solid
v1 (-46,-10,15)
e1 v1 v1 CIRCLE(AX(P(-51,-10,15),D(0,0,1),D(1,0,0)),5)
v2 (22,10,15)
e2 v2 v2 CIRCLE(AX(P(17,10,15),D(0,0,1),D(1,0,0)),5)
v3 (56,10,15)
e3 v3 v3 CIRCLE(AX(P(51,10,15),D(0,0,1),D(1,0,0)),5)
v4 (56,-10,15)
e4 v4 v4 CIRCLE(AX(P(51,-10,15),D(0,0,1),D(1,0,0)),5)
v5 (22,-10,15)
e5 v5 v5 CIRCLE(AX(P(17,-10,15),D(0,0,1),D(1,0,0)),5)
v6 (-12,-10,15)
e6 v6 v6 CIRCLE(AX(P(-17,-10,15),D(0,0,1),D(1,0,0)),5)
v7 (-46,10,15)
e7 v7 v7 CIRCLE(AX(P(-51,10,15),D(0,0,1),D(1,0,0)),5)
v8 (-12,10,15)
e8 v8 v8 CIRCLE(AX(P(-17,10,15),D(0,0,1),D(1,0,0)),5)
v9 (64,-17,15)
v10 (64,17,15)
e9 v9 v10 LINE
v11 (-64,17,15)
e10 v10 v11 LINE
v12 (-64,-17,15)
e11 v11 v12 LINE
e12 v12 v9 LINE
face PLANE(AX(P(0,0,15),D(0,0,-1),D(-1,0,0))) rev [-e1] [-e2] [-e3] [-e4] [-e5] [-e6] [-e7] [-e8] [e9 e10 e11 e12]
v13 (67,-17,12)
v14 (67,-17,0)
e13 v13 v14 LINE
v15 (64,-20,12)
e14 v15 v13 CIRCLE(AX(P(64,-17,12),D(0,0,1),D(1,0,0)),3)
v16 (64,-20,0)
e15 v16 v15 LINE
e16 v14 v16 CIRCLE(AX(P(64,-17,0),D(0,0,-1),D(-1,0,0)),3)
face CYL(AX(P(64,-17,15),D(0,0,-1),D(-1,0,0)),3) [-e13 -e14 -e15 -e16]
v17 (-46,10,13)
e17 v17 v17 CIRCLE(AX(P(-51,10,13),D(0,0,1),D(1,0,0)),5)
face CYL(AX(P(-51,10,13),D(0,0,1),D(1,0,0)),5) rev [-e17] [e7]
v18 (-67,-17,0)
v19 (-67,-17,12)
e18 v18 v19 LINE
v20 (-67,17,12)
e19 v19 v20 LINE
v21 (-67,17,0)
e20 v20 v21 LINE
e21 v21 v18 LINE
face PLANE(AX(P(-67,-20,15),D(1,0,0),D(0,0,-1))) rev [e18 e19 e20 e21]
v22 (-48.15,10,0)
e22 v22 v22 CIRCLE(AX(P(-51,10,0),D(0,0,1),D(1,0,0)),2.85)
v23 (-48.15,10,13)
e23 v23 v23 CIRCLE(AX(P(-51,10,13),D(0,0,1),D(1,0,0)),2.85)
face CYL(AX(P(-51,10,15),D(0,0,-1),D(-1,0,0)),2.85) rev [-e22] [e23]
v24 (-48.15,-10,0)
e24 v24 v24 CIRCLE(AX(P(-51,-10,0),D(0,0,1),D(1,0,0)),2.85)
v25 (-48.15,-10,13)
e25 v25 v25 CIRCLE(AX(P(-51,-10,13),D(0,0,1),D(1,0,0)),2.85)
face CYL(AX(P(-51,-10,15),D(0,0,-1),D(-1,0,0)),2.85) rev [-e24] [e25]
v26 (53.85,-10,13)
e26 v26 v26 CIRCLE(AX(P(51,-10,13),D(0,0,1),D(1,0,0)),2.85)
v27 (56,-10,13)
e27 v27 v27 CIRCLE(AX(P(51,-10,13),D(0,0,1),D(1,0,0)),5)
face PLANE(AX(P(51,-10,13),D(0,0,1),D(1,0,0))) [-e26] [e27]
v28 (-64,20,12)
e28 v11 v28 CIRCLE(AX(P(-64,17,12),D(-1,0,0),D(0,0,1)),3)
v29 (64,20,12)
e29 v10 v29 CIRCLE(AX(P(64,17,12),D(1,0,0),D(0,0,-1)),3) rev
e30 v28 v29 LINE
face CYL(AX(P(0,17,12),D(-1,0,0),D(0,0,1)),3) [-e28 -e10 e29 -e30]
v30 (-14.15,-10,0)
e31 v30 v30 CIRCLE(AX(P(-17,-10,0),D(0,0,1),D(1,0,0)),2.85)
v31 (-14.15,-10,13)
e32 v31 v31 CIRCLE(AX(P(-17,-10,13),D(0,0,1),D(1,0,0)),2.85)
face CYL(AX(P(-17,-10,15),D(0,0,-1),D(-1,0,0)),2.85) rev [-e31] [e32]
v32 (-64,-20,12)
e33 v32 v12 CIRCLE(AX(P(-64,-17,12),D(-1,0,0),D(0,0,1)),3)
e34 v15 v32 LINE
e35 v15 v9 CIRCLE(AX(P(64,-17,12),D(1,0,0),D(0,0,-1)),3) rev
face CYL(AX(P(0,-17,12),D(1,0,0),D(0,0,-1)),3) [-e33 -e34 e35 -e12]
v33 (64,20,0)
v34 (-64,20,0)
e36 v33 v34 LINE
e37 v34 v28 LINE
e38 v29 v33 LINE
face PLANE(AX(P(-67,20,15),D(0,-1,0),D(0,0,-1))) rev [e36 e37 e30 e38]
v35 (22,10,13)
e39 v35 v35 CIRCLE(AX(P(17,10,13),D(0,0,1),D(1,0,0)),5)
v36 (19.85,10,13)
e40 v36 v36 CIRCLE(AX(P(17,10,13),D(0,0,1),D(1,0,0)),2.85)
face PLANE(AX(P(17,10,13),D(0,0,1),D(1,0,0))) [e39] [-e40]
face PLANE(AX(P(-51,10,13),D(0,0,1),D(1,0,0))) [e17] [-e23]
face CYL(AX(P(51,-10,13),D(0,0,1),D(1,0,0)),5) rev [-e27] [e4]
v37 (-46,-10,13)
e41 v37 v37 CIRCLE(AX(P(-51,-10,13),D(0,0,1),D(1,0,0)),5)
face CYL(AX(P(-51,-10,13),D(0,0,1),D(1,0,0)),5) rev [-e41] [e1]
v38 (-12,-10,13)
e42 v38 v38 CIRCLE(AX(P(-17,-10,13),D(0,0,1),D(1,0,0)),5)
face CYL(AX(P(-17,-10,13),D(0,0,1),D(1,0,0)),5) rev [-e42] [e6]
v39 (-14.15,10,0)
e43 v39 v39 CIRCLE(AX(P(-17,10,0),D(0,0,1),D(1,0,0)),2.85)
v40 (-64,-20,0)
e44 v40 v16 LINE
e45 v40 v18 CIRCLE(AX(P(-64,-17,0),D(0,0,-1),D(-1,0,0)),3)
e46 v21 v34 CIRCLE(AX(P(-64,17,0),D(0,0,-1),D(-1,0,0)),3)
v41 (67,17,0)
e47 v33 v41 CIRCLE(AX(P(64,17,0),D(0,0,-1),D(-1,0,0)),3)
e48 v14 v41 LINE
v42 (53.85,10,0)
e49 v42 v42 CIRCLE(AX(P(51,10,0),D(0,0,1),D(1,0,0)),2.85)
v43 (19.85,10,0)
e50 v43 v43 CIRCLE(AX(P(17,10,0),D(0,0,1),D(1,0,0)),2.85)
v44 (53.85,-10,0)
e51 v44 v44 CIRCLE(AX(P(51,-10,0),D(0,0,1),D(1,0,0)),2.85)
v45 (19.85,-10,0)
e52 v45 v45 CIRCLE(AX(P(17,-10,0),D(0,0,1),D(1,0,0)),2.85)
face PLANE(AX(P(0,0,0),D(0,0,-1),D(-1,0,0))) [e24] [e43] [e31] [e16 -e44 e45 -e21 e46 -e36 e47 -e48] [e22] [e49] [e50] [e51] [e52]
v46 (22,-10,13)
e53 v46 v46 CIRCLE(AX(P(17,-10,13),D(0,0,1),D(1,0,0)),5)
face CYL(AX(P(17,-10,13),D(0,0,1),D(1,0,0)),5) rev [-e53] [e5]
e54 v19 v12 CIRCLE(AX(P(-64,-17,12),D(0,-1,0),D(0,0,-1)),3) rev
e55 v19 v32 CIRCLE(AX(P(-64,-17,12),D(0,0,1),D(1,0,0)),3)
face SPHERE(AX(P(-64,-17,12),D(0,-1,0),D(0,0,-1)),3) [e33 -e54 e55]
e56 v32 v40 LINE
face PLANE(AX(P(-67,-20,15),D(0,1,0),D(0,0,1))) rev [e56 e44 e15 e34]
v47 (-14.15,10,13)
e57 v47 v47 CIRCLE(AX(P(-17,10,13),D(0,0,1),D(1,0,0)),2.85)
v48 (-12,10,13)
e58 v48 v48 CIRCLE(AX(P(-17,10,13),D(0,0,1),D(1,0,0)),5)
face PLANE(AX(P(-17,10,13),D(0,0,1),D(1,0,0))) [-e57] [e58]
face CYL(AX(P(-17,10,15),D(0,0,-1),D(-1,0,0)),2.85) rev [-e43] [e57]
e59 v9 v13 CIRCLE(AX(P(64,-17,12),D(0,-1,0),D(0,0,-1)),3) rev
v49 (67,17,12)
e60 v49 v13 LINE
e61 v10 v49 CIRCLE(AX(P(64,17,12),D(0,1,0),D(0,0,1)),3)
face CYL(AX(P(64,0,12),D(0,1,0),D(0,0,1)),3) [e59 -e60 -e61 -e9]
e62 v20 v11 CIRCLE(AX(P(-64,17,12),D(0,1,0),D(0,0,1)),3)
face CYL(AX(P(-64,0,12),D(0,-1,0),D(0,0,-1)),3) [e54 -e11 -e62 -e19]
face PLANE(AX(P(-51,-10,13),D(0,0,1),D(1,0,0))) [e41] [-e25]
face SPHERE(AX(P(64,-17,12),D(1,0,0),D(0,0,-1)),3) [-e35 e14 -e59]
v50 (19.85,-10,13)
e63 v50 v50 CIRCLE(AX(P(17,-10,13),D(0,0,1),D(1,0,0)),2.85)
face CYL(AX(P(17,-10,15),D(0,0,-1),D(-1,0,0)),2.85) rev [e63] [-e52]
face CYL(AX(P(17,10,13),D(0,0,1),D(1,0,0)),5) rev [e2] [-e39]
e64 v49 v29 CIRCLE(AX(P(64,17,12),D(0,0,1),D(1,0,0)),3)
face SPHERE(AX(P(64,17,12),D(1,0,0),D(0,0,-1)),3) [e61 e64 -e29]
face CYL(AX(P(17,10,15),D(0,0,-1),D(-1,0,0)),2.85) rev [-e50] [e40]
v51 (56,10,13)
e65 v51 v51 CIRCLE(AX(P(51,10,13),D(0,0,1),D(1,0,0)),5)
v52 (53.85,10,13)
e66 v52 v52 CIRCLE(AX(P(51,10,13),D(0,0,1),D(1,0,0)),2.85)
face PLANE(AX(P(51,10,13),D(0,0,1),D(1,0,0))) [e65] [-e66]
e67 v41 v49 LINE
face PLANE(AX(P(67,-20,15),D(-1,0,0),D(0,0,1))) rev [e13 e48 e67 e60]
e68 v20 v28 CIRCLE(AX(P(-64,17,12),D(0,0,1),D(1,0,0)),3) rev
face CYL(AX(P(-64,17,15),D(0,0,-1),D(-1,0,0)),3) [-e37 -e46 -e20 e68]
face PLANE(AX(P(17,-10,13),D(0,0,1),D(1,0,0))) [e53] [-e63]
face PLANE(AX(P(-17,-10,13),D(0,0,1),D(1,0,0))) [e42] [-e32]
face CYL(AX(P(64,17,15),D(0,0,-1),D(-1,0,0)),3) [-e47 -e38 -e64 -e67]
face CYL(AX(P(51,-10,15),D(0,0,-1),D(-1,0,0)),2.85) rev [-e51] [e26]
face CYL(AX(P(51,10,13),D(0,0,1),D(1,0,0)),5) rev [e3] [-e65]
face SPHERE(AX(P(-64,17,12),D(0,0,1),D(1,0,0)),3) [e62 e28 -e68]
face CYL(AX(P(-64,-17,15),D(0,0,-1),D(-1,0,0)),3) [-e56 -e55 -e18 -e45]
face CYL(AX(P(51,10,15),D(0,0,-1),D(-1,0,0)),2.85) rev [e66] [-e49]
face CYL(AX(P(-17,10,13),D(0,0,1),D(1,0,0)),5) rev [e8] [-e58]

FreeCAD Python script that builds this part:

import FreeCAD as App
import Part
import Sketcher

V = App.Vector


def edges_at(feature, points):
    """Names of the edges that pass closest to the given points."""
    edges = feature.Shape.Edges
    near = lambda p: min(range(len(edges)), key=lambda i: edges[i].distToShape(Part.Vertex(*p))[0])
    return sorted({f"Edge{near(p) + 1}" for p in points})


def add_polygon(sketch, points):
    """Adds a closed chain of lines whose ends are joined by coincident constraints."""
    first, n = sketch.GeometryCount, len(points)
    for a, b in zip(points, points[1:] + points[:1]):
        sketch.addGeometry(Part.LineSegment(App.Vector(*a, 0), App.Vector(*b, 0)), False)
    for i in range(n):
        sketch.addConstraint(Sketcher.Constraint("Coincident", first + i, 2, first + (i + 1) % n, 1))

doc = App.newDocument("Part")
body = doc.addObject("PartDesign::Body", "Body")

# Sketch on XY plane
sketch1 = body.newObject("Sketcher::SketchObject", "Sketch")
sketch1.AttachmentSupport = (doc.getObject("XY_Plane"), [""])
sketch1.MapMode = "FlatFace"
add_polygon(sketch1, [(-67, 20), (-67, -20), (67, -20), (67, 20)])  # lines 0-3
sketch1.addGeometry(Part.Circle(V(-51, -10, 0), V(0, 0, 1), 2.85), False)  # 4
sketch1.addGeometry(Part.Circle(V(-17, -10, 0), V(0, 0, 1), 2.85), False)  # 5
sketch1.addGeometry(Part.Circle(V(17, -10, 0), V(0, 0, 1), 2.85), False)  # 6
sketch1.addGeometry(Part.Circle(V(51, -10, 0), V(0, 0, 1), 2.85), False)  # 7
sketch1.addGeometry(Part.Circle(V(-51, 10, 0), V(0, 0, 1), 2.85), False)  # 8
sketch1.addGeometry(Part.Circle(V(-17, 10, 0), V(0, 0, 1), 2.85), False)  # 9
sketch1.addGeometry(Part.Circle(V(17, 10, 0), V(0, 0, 1), 2.85), False)  # 10
sketch1.addGeometry(Part.Circle(V(51, 10, 0), V(0, 0, 1), 2.85), False)  # 11
sketch1.addConstraint(Sketcher.Constraint("Vertical", 0))
sketch1.addConstraint(Sketcher.Constraint("Horizontal", 1))
sketch1.addConstraint(Sketcher.Constraint("Vertical", 2))
sketch1.addConstraint(Sketcher.Constraint("Horizontal", 3))
sketch1.addConstraint(Sketcher.Constraint("Equal", 4, 5))
sketch1.addConstraint(Sketcher.Constraint("Equal", 5, 6))
sketch1.addConstraint(Sketcher.Constraint("Equal", 6, 7))
sketch1.addConstraint(Sketcher.Constraint("Equal", 7, 8))
sketch1.addConstraint(Sketcher.Constraint("Equal", 8, 9))
sketch1.addConstraint(Sketcher.Constraint("Equal", 9, 10))
sketch1.addConstraint(Sketcher.Constraint("Equal", 10, 11))
sketch1.addConstraint(Sketcher.Constraint("Symmetric", 7, 3, 8, 3, -1, 1))
sketch1.addConstraint(Sketcher.Constraint("Symmetric", 6, 3, 9, 3, -1, 1))
sketch1.addConstraint(Sketcher.Constraint("Symmetric", 5, 3, 10, 3, -1, 1))
sketch1.addConstraint(Sketcher.Constraint("Symmetric", 4, 3, 11, 3, -1, 1))
sketch1.addConstraint(Sketcher.Constraint("Symmetric", 0, 2, 2, 2, -1, 1))
sketch1.addConstraint(Sketcher.Constraint("Symmetric", 5, 3, 6, 3, -2))
sketch1.addConstraint(Sketcher.Constraint("Symmetric", 4, 3, 7, 3, -2))
sketch1.addConstraint(Sketcher.Constraint("Horizontal", 4, 3, 5, 3))
sketch1.addConstraint(Sketcher.Constraint("Diameter", 4, 5.7))
sketch1.addConstraint(Sketcher.Constraint("DistanceX", 1, 1, 1, 2, 134.0))
sketch1.addConstraint(Sketcher.Constraint("DistanceY", 0, 2, 0, 1, 40.0))
sketch1.addConstraint(Sketcher.Constraint("DistanceX", 4, 3, -1, 1, 51.0))
sketch1.addConstraint(Sketcher.Constraint("DistanceY", 4, 3, -1, 1, 10.0))
sketch1.addConstraint(Sketcher.Constraint("DistanceX", 5, 3, -1, 1, 17.0))
pad1 = body.newObject("PartDesign::Pad", "Pad")
pad1.Profile = sketch1
pad1.Length = 15

# Sketch on XY plane
sketch2 = body.newObject("Sketcher::SketchObject", "Sketch001")
sketch2.AttachmentSupport = (doc.getObject("XY_Plane"), [""])
sketch2.MapMode = "FlatFace"
sketch2.AttachmentOffset = App.Placement(V(0, 0, 15), App.Rotation())
sketch2.addGeometry(Part.Circle(V(-51, 10, 0), V(0, 0, 1), 5), False)
sketch2.addGeometry(Part.Circle(V(-17, 10, 0), V(0, 0, 1), 5), False)
sketch2.addGeometry(Part.Circle(V(17, 10, 0), V(0, 0, 1), 5), False)
sketch2.addGeometry(Part.Circle(V(51, 10, 0), V(0, 0, 1), 5), False)
sketch2.addGeometry(Part.Circle(V(-17, -10, 0), V(0, 0, 1), 5), False)
sketch2.addGeometry(Part.Circle(V(17, -10, 0), V(0, 0, 1), 5), False)
sketch2.addGeometry(Part.Circle(V(51, -10, 0), V(0, 0, 1), 5), False)
sketch2.addGeometry(Part.Circle(V(-51, -10, 0), V(0, 0, 1), 5), False)
sketch2.addConstraint(Sketcher.Constraint("Equal", 0, 1))
sketch2.addConstraint(Sketcher.Constraint("Equal", 1, 2))
sketch2.addConstraint(Sketcher.Constraint("Equal", 2, 3))
sketch2.addConstraint(Sketcher.Constraint("Equal", 3, 4))
sketch2.addConstraint(Sketcher.Constraint("Equal", 4, 5))
sketch2.addConstraint(Sketcher.Constraint("Equal", 5, 6))
sketch2.addConstraint(Sketcher.Constraint("Equal", 6, 7))
sketch2.addConstraint(Sketcher.Constraint("Symmetric", 2, 3, 4, 3, -1, 1))
sketch2.addConstraint(Sketcher.Constraint("Symmetric", 1, 3, 5, 3, -1, 1))
sketch2.addConstraint(Sketcher.Constraint("Symmetric", 0, 3, 6, 3, -1, 1))
sketch2.addConstraint(Sketcher.Constraint("Symmetric", 3, 3, 7, 3, -1, 1))
sketch2.addConstraint(Sketcher.Constraint("Symmetric", 1, 3, 2, 3, -2))
sketch2.addConstraint(Sketcher.Constraint("Symmetric", 0, 3, 3, 3, -2))
sketch2.addConstraint(Sketcher.Constraint("Horizontal", 0, 3, 1, 3))
sketch2.addConstraint(Sketcher.Constraint("Diameter", 0, 10.0))
sketch2.addConstraint(Sketcher.Constraint("DistanceX", 0, 3, -1, 1, 51.0))
sketch2.addConstraint(Sketcher.Constraint("DistanceY", -1, 1, 0, 3, 10.0))
sketch2.addConstraint(Sketcher.Constraint("DistanceX", 1, 3, -1, 1, 17.0))
pocket1 = body.newObject("PartDesign::Pocket", "Pocket")
pocket1.Profile = sketch2
pocket1.Length = 2
doc.recompute()

fillet = body.newObject("PartDesign::Fillet", "Fillet")
fillet.Base = (pocket1, edges_at(pocket1, [
    (-67, 0, 15),
    (0, -20, 15),
    (67, 0, 15),
    (67, -20, 7.5),
    (-67, -20, 7.5),
    (-67, 20, 7.5),
    (67, 20, 7.5),
    (0, 20, 15),
]))
fillet.Radius = 3

doc.recompute()
